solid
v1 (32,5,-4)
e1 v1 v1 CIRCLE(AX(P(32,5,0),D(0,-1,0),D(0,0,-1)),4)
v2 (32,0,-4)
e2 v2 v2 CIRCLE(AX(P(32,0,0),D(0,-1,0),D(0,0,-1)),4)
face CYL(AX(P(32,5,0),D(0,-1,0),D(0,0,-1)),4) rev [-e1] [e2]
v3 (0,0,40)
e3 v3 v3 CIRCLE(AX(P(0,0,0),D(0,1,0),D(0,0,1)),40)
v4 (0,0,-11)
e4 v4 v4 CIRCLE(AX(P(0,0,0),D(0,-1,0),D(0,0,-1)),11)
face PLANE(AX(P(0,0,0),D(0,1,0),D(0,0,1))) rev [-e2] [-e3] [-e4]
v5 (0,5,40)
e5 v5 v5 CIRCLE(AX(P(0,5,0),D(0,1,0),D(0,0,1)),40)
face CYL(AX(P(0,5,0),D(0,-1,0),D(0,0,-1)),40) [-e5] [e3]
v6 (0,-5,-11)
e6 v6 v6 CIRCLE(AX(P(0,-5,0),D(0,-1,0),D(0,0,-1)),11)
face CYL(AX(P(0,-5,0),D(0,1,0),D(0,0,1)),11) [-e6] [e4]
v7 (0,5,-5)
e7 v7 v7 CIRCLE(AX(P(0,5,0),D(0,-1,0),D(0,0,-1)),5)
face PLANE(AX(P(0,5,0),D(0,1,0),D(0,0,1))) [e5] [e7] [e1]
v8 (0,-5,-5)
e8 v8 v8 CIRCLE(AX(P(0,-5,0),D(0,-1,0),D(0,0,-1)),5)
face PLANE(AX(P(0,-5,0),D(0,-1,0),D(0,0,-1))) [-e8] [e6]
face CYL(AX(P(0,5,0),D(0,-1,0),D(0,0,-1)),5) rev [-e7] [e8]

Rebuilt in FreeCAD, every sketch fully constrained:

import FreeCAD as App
import Part
import Sketcher
from FreeCAD import Vector

doc = App.newDocument("Part")
body = doc.addObject("PartDesign::Body", "Body")

# Sketch on XZ plane
sketch1 = body.newObject("Sketcher::SketchObject", "Sketch")
sketch1.AttachmentSupport = (doc.getObject("XZ_Plane"), [""])
sketch1.MapMode = "FlatFace"
sketch1.addGeometry(Part.Circle(Vector(0, 0, 0), Vector(0, 0, 1), 40), False)
sketch1.addConstraint([
    Sketcher.Constraint("Coincident", 0, 3, -1, 1),
    Sketcher.Constraint("Diameter", 0, 80.0),
])
pad1 = body.newObject("PartDesign::Pad", "Pad")
pad1.Profile = sketch1
pad1.Length = 5
pad1.Reversed = True

# Sketch on XZ plane
sketch2 = body.newObject("Sketcher::SketchObject", "Sketch001")
sketch2.AttachmentSupport = (doc.getObject("XZ_Plane"), [""])
sketch2.MapMode = "FlatFace"
sketch2.addGeometry(Part.Circle(Vector(0, 0, 0), Vector(0, 0, 1), 11), False)
sketch2.addConstraint([
    Sketcher.Constraint("Coincident", 0, 3, -1, 1),
    Sketcher.Constraint("Diameter", 0, 22.0),
])
pad2 = body.newObject("PartDesign::Pad", "Pad001")
pad2.Profile = sketch2
pad2.Length = 5

# Sketch on XZ plane
sketch3 = body.newObject("Sketcher::SketchObject", "Sketch002")
sketch3.AttachmentSupport = (doc.getObject("XZ_Plane"), [""])
sketch3.MapMode = "FlatFace"
sketch3.AttachmentOffset = App.Placement(Vector(0, 0, 5), App.Rotation())
sketch3.addGeometry(Part.Circle(Vector(0, 0, 0), Vector(0, 0, 1), 5), False)
sketch3.addConstraint([
    Sketcher.Constraint("Coincident", 0, 3, -1, 1),
    Sketcher.Constraint("Diameter", 0, 10.0),
])
pocket1 = body.newObject("PartDesign::Pocket", "Pocket")
pocket1.Profile = sketch3
pocket1.Type = "ThroughAll"

# Sketch on XZ plane
sketch4 = body.newObject("Sketcher::SketchObject", "Sketch003")
sketch4.AttachmentSupport = (doc.getObject("XZ_Plane"), [""])
sketch4.MapMode = "FlatFace"
sketch4.addGeometry(Part.Circle(Vector(32, 0, 0), Vector(0, 0, 1), 4), False)
sketch4.addConstraint([
    Sketcher.Constraint("PointOnObject", 0, 3, -1),
    Sketcher.Constraint("Diameter", 0, 8.0),
    Sketcher.Constraint("DistanceX", -1, 1, 0, 3, 32.0),
])
pocket2 = body.newObject("PartDesign::Pocket", "Pocket001")
pocket2.Profile = sketch4
pocket2.Type = "ThroughAll"

doc.recompute()
